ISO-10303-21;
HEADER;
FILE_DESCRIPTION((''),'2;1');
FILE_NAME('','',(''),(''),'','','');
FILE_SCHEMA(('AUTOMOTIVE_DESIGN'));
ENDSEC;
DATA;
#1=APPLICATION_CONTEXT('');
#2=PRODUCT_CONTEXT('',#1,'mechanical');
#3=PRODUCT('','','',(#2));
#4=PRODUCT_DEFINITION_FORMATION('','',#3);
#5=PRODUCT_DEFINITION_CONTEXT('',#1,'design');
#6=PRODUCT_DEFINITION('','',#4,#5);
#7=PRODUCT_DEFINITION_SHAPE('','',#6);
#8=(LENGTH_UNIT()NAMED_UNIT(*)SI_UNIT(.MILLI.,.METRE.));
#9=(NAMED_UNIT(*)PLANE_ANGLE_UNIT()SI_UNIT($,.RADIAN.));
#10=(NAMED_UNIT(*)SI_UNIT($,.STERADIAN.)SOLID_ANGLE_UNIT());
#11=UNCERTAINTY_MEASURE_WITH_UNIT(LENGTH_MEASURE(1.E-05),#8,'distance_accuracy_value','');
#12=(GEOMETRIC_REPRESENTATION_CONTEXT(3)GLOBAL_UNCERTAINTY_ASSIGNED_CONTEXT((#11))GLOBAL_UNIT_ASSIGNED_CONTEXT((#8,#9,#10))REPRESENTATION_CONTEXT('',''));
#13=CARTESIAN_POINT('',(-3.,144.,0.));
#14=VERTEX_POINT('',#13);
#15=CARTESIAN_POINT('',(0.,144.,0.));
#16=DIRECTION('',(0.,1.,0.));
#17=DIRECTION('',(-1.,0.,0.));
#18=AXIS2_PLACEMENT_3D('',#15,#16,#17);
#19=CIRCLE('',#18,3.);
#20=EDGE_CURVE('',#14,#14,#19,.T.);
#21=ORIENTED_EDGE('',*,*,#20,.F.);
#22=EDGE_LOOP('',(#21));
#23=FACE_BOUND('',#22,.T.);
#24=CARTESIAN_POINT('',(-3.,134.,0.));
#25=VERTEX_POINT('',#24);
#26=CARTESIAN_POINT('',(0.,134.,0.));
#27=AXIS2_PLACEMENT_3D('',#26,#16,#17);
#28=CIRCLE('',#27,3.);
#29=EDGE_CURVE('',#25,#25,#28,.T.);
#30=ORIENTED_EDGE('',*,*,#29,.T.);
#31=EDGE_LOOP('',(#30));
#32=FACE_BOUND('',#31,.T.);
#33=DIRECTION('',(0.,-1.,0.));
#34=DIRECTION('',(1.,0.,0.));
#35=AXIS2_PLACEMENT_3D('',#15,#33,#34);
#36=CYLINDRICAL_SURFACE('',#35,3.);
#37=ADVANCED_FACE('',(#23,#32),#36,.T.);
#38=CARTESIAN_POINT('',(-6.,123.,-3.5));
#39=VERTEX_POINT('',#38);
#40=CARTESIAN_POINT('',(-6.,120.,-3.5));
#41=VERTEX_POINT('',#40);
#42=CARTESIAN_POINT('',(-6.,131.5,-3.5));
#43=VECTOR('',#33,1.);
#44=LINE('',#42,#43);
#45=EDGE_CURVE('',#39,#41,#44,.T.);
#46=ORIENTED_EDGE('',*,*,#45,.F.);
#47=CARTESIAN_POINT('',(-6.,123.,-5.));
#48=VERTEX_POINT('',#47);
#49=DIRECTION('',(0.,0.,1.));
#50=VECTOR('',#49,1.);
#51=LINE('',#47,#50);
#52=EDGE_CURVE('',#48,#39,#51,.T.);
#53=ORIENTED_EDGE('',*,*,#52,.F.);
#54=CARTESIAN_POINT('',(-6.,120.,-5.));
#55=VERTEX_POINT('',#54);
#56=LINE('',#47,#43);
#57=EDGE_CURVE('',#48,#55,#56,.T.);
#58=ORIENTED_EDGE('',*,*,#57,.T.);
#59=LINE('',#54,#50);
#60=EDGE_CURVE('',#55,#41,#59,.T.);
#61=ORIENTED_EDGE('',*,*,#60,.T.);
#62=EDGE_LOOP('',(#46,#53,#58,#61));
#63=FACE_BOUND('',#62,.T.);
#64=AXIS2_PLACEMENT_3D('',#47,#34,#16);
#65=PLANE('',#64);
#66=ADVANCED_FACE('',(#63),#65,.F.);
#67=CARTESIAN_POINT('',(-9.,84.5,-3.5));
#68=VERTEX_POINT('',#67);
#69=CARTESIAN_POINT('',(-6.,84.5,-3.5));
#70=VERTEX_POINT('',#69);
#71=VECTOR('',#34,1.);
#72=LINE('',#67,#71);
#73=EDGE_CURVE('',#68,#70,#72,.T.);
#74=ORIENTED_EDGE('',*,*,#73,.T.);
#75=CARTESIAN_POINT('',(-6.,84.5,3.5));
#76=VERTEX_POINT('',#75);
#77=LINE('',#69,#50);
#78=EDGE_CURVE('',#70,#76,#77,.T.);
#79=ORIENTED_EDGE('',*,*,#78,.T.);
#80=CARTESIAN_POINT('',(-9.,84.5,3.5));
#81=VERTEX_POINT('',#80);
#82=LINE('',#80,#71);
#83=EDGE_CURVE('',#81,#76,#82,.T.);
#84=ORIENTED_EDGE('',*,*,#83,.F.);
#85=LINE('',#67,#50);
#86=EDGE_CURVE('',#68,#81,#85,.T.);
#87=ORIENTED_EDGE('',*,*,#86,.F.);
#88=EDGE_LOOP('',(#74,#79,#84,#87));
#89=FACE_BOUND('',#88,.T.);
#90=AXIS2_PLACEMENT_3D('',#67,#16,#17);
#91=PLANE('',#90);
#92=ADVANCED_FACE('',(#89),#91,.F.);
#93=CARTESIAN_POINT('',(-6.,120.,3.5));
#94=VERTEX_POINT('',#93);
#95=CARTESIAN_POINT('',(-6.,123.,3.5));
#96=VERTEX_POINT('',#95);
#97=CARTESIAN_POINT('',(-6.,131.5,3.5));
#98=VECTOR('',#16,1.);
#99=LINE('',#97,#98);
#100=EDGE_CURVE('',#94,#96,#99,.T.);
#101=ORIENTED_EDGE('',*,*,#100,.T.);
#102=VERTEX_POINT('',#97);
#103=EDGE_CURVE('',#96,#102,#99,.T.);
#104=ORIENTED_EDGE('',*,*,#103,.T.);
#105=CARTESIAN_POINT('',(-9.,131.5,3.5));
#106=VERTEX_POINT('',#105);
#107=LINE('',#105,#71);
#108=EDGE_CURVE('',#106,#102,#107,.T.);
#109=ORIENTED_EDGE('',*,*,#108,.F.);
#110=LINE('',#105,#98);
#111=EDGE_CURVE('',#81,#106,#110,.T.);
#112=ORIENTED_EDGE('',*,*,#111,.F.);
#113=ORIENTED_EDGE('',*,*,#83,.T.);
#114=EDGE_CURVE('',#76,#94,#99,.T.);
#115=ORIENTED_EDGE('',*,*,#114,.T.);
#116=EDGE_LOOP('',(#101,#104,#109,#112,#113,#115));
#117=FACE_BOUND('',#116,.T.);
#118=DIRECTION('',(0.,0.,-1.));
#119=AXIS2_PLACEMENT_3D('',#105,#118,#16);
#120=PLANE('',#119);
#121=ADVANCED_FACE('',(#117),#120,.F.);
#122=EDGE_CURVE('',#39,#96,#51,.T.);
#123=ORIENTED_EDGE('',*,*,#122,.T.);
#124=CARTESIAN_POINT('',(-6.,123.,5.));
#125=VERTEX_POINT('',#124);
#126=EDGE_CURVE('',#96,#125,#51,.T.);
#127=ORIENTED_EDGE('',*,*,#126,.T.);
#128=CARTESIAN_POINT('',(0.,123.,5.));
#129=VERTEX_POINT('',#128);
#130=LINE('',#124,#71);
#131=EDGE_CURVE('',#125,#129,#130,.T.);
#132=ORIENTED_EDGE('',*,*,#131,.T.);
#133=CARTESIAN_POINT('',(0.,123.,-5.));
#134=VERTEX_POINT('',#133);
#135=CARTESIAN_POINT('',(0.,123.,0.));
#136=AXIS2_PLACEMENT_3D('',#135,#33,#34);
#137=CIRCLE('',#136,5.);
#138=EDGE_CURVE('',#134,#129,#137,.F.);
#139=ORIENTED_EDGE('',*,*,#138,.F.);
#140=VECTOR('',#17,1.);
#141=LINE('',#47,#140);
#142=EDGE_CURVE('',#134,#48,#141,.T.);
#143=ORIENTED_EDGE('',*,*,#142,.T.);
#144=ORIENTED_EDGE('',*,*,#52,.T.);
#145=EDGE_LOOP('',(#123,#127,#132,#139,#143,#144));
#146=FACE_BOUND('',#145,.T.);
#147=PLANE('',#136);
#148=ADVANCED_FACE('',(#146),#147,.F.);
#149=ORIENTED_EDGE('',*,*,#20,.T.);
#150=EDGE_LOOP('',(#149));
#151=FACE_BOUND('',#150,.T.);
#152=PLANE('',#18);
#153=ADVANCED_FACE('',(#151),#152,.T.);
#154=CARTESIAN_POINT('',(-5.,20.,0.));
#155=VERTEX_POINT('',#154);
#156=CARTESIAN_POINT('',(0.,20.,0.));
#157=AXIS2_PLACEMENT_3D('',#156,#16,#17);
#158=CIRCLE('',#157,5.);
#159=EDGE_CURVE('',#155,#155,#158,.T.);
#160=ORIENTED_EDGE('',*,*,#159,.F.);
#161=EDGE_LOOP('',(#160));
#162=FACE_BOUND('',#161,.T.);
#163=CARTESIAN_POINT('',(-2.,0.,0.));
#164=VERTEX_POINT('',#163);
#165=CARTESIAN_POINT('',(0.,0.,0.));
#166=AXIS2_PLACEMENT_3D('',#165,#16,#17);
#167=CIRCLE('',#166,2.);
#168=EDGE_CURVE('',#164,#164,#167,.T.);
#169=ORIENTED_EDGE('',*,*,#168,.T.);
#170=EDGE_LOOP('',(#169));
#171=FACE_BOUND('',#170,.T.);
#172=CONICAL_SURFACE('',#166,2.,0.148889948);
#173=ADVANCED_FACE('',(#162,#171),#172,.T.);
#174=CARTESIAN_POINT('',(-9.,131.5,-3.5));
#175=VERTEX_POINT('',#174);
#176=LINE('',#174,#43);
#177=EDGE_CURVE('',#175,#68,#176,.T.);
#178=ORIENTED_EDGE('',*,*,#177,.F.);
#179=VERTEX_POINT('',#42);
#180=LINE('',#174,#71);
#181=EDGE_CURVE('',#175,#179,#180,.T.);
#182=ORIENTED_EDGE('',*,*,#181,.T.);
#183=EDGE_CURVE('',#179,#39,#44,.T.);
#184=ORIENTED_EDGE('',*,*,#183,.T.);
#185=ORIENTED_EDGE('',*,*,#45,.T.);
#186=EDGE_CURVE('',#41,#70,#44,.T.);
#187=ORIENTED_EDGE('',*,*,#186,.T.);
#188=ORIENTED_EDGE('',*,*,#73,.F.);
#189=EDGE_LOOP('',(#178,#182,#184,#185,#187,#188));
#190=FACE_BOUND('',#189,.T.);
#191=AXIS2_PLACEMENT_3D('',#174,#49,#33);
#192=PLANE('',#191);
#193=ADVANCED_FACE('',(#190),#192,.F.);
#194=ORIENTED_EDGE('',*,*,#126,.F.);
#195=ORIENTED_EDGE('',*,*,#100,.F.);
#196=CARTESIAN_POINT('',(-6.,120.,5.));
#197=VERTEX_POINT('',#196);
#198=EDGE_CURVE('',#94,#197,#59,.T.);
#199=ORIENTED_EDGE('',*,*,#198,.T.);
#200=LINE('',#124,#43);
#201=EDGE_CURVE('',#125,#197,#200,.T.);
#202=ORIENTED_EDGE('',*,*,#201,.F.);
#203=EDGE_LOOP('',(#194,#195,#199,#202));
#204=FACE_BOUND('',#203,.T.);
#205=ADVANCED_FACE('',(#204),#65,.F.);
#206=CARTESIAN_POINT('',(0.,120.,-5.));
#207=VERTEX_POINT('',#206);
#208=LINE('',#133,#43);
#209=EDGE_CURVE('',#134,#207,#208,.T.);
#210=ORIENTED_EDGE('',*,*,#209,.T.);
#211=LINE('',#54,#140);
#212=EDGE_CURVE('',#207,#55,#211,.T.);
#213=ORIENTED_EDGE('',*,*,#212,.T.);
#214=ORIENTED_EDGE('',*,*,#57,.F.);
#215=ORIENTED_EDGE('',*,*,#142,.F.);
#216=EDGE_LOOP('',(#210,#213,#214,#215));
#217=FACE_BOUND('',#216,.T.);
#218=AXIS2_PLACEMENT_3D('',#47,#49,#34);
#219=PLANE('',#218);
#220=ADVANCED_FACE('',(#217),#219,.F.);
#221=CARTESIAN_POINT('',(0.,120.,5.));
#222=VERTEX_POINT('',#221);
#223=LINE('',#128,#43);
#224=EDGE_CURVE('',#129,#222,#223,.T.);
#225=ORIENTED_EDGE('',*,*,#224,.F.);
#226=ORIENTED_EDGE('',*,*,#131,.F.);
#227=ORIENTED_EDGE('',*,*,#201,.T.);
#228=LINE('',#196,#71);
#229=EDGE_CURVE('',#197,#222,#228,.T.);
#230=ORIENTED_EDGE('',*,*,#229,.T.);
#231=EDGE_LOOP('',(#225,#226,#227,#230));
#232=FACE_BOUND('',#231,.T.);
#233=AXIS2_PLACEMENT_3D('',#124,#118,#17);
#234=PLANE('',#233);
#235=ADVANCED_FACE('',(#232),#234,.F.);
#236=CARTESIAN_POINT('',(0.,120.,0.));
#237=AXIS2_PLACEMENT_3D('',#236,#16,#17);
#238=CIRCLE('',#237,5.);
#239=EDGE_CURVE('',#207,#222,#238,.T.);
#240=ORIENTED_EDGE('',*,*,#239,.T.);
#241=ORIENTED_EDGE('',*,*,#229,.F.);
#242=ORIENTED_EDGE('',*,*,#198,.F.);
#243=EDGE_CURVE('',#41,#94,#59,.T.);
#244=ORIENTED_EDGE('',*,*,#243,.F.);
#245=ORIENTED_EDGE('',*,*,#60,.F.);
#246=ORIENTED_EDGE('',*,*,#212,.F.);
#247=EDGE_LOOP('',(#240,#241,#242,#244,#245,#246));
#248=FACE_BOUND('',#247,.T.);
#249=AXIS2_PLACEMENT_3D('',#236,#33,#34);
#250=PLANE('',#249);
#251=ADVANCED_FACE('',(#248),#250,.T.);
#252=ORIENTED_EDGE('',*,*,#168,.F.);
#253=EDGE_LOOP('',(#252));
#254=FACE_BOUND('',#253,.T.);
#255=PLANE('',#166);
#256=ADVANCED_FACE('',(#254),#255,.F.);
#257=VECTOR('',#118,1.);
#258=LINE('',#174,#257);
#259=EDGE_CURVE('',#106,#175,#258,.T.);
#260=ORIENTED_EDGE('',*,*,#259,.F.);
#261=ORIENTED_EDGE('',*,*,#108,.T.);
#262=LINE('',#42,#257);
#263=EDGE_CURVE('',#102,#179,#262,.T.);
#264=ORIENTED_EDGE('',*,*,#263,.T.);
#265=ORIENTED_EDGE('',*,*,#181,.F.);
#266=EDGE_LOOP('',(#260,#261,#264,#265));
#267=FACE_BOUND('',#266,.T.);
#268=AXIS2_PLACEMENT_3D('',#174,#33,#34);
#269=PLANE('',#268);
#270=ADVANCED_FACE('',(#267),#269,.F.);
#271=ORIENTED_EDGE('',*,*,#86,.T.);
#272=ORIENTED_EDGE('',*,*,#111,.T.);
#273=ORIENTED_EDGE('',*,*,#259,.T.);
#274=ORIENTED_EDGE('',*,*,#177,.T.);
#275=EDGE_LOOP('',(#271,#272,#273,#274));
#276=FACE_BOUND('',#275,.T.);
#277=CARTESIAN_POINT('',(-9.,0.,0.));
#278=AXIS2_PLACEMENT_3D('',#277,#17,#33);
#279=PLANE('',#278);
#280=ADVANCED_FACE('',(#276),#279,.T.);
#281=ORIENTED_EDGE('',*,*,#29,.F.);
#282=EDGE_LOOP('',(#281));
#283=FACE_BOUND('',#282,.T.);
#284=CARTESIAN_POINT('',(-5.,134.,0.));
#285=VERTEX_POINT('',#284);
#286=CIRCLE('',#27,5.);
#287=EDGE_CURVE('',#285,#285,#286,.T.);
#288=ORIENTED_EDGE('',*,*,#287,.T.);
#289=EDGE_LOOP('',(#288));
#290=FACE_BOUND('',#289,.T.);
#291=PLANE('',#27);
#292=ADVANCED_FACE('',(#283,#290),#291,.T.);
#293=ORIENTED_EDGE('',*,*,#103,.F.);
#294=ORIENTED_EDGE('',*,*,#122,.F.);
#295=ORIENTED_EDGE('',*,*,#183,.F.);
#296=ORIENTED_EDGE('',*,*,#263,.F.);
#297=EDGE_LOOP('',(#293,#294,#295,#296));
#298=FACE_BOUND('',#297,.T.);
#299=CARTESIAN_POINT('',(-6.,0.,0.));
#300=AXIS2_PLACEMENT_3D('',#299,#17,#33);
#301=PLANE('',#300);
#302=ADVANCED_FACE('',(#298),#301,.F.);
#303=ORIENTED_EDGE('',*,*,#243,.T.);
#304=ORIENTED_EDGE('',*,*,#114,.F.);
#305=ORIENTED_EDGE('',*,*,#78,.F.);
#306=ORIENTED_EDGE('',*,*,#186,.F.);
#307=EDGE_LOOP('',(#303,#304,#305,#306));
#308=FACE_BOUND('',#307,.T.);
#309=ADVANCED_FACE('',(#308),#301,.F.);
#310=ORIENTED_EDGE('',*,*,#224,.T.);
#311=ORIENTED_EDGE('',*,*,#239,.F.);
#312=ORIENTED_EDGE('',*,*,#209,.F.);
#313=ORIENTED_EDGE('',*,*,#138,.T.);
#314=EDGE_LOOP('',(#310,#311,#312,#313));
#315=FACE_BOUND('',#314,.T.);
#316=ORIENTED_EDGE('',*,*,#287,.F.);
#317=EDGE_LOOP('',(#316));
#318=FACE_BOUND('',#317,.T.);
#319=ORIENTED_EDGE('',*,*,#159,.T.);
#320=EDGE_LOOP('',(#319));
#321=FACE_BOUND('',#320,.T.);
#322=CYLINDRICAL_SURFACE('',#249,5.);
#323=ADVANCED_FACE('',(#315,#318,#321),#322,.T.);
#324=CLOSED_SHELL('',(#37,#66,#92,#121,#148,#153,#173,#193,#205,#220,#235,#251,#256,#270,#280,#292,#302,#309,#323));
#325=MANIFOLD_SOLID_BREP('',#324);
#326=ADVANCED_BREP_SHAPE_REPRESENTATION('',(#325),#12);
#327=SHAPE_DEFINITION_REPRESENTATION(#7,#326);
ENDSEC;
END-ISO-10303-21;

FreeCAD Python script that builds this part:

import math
import FreeCAD as App
import Part
import Sketcher
from FreeCAD import Vector

doc = App.newDocument("Part")
body = doc.addObject("PartDesign::Body", "Body")

sketch1 = doc.addObject("Sketcher::SketchObject", "Sketch")
body.addObject(sketch1)
sketch1.AttachmentSupport = (doc.XY_Plane, [""])
sketch1.MapMode = "FlatFace"
sketch1.addGeometry([
    Part.LineSegment(Vector(2, 0, 0), Vector(5, 20, 0)),
    Part.LineSegment(Vector(5, 20, 0), Vector(0, 20, 0)),
    Part.LineSegment(Vector(0, 20, 0), Vector(0, 0, 0)),
    Part.LineSegment(Vector(0, 0, 0), Vector(2, 0, 0)),
], False)
sketch1.addConstraint([
    Sketcher.Constraint("Coincident", 0, 2, 1, 1),
    Sketcher.Constraint("Coincident", 1, 2, 2, 1),
    Sketcher.Constraint("Coincident", 2, 2, 3, 1),
    Sketcher.Constraint("Coincident", 3, 2, 0, 1),
    Sketcher.Constraint("Horizontal", 1),
    Sketcher.Constraint("Vertical", 2),
    Sketcher.Constraint("Horizontal", 3),
    Sketcher.Constraint("Coincident", 2, 2, -1, 1),
    Sketcher.Constraint("DistanceX", 1, 2, 1, 1, 5.0),
    Sketcher.Constraint("DistanceX", 3, 1, 3, 2, 2.0),
    Sketcher.Constraint("DistanceY", 2, 2, 2, 1, 20.0),
])
revolution = doc.addObject("PartDesign::Revolution", "Revolution")
body.addObject(revolution)
revolution.Profile = sketch1
revolution.ReferenceAxis = (sketch1, ["V_Axis"])
revolution.Angle = 360

sketch2 = doc.addObject("Sketcher::SketchObject", "Sketch001")
body.addObject(sketch2)
sketch2.AttachmentSupport = (doc.XZ_Plane, [""])
sketch2.MapMode = "FlatFace"
sketch2.AttachmentOffset = App.Placement(Vector(0, 0, -20), App.Rotation())
sketch2.addGeometry(Part.Circle(Vector(0, 0, 0), Vector(0, 0, 1), 5), False)
sketch2.addConstraint([
    Sketcher.Constraint("Coincident", 0, 3, -1, 1),
    Sketcher.Constraint("Diameter", 0, 10.0),
])
pad1 = doc.addObject("PartDesign::Pad", "Pad")
body.addObject(pad1)
pad1.Profile = sketch2
pad1.Length = 100
pad1.Reversed = True

sketch3 = doc.addObject("Sketcher::SketchObject", "Sketch002")
body.addObject(sketch3)
sketch3.AttachmentSupport = (doc.XZ_Plane, [""])
sketch3.MapMode = "FlatFace"
sketch3.AttachmentOffset = App.Placement(Vector(0, 0, -120), App.Rotation())
sketch3.addGeometry([
    Part.LineSegment(Vector(0, -5, 0), Vector(-6, -5, 0)),
    Part.LineSegment(Vector(-6, -5, 0), Vector(-6, 5, 0)),
    Part.LineSegment(Vector(-6, 5, 0), Vector(0, 5, 0)),
    Part.ArcOfCircle(Part.Circle(Vector(0, 0, 0), Vector(0, 0, 1), 5), math.radians(-90), math.radians(90)),
], False)
sketch3.addConstraint([
    Sketcher.Constraint("Coincident", 0, 2, 1, 1),
    Sketcher.Constraint("Coincident", 1, 2, 2, 1),
    Sketcher.Constraint("Tangent", 2, 2, 3, 2),
    Sketcher.Constraint("Tangent", 3, 1, 0, 1),
    Sketcher.Constraint("Horizontal", 0),
    Sketcher.Constraint("Vertical", 1),
    Sketcher.Constraint("Horizontal", 2),
    Sketcher.Constraint("Coincident", 3, 3, -1, 1),
    Sketcher.Constraint("Radius", 3, 5.0),
    Sketcher.Constraint("DistanceX", 0, 2, 0, 1, 6.0),
])
pad2 = doc.addObject("PartDesign::Pad", "Pad001")
body.addObject(pad2)
pad2.Profile = sketch3
pad2.Length = 3
pad2.Reversed = True

sketch4 = doc.addObject("Sketcher::SketchObject", "Sketch003")
body.addObject(sketch4)
sketch4.AttachmentSupport = (doc.YZ_Plane, [""])
sketch4.MapMode = "FlatFace"
sketch4.AttachmentOffset = App.Placement(Vector(0, 0, -6), App.Rotation())
sketch4.addGeometry([
    Part.LineSegment(Vector(131.5, -3.5, 0), Vector(84.5, -3.5, 0)),
    Part.LineSegment(Vector(84.5, -3.5, 0), Vector(84.5, 3.5, 0)),
    Part.LineSegment(Vector(84.5, 3.5, 0), Vector(131.5, 3.5, 0)),
    Part.LineSegment(Vector(131.5, 3.5, 0), Vector(131.5, -3.5, 0)),
], False)
sketch4.addConstraint([
    Sketcher.Constraint("Coincident", 0, 2, 1, 1),
    Sketcher.Constraint("Coincident", 1, 2, 2, 1),
    Sketcher.Constraint("Coincident", 2, 2, 3, 1),
    Sketcher.Constraint("Coincident", 3, 2, 0, 1),
    Sketcher.Constraint("Horizontal", 0),
    Sketcher.Constraint("Vertical", 1),
    Sketcher.Constraint("Horizontal", 2),
    Sketcher.Constraint("Vertical", 3),
    Sketcher.Constraint("DistanceX", 0, 2, 0, 1, 47.0),
    Sketcher.Constraint("DistanceY", 1, 1, 1, 2, 7.0),
    Sketcher.Constraint("DistanceX", -1, 1, 0, 2, 84.5),
    Sketcher.Constraint("DistanceY", 0, 2, -1, 1, 3.5),
])
pad3 = doc.addObject("PartDesign::Pad", "Pad002")
body.addObject(pad3)
pad3.Profile = sketch4
pad3.Length = 3
pad3.Reversed = True

sketch5 = doc.addObject("Sketcher::SketchObject", "Sketch004")
body.addObject(sketch5)
sketch5.AttachmentSupport = (doc.XZ_Plane, [""])
sketch5.MapMode = "FlatFace"
sketch5.AttachmentOffset = App.Placement(Vector(0, 0, -123), App.Rotation())
sketch5.addGeometry(Part.Circle(Vector(0, 0, 0), Vector(0, 0, 1), 5), False)
sketch5.addConstraint([
    Sketcher.Constraint("Coincident", 0, 3, -1, 1),
    Sketcher.Constraint("Diameter", 0, 10.0),
])
pad4 = doc.addObject("PartDesign::Pad", "Pad003")
body.addObject(pad4)
pad4.Profile = sketch5
pad4.Length = 11
pad4.Reversed = True

sketch6 = doc.addObject("Sketcher::SketchObject", "Sketch005")
body.addObject(sketch6)
sketch6.AttachmentSupport = (doc.XZ_Plane, [""])
sketch6.MapMode = "FlatFace"
sketch6.AttachmentOffset = App.Placement(Vector(0, 0, -134), App.Rotation())
sketch6.addGeometry(Part.Circle(Vector(0, 0, 0), Vector(0, 0, 1), 3), False)
sketch6.addConstraint([
    Sketcher.Constraint("Coincident", 0, 3, -1, 1),
    Sketcher.Constraint("Diameter", 0, 6.0),
])
pad5 = doc.addObject("PartDesign::Pad", "Pad004")
body.addObject(pad5)
pad5.Profile = sketch6
pad5.Length = 10
pad5.Reversed = True

doc.recompute()
